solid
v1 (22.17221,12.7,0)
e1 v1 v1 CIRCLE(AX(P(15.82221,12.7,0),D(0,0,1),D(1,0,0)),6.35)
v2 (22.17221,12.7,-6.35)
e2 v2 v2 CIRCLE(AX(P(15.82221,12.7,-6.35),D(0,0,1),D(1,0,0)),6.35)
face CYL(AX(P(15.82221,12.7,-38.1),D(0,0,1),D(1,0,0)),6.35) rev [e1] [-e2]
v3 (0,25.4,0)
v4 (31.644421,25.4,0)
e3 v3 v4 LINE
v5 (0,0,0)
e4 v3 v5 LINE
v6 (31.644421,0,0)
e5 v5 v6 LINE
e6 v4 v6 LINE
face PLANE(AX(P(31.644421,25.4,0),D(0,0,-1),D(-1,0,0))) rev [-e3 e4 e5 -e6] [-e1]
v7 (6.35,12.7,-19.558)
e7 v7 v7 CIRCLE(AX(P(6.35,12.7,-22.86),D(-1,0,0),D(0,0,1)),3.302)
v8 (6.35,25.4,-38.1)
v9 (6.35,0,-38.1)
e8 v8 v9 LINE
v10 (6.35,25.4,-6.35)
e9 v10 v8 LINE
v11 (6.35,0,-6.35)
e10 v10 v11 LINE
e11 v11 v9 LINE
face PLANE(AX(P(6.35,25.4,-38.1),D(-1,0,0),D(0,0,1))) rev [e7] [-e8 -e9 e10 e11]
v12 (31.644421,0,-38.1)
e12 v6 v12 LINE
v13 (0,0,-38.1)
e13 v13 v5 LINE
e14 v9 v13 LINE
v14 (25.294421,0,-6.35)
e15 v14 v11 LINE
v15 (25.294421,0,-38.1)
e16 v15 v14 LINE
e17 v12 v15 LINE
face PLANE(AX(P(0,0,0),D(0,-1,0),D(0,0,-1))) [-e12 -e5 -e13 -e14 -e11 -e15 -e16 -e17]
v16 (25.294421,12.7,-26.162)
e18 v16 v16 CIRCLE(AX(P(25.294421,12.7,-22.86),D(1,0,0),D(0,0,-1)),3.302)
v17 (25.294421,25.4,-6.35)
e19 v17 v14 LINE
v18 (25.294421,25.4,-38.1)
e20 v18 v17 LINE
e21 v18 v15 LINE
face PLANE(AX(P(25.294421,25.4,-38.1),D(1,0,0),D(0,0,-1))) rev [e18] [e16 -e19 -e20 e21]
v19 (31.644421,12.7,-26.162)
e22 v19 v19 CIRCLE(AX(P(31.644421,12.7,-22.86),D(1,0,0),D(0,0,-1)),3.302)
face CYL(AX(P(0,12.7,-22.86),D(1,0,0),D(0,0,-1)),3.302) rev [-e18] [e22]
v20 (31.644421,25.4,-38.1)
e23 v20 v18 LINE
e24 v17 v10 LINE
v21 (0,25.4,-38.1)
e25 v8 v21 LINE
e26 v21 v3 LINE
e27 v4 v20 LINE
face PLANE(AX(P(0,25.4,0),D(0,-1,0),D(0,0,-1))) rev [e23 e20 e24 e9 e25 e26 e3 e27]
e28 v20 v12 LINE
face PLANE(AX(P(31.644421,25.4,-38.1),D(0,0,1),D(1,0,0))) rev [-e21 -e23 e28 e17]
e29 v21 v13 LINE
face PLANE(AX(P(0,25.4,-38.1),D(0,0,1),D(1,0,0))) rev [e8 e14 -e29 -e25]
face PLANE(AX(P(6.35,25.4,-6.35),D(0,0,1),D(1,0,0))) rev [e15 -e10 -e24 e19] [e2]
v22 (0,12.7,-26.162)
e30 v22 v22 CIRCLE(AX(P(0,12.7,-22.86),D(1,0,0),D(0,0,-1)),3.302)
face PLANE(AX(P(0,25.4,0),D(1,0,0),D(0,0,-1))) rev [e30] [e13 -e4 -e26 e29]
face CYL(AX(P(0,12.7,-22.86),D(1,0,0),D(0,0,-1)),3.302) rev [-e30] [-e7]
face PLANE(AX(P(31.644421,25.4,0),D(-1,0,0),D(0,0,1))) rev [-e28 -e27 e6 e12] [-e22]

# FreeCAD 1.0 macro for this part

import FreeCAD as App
import Part
import Sketcher
from FreeCAD import Vector
Q = App.Units.Quantity

doc = App.newDocument("Part")
body = doc.addObject("PartDesign::Body", "Body")

sketch1 = body.newObject("Sketcher::SketchObject", "Sketch")
sketch1.AttachmentSupport = (doc.getObject("XZ_Plane"), [""])
sketch1.MapMode = "FlatFace"
sketch1.addGeometry([
    Part.LineSegment(Vector(0, -38.1, 0), Vector(0, 0, 0)),
    Part.LineSegment(Vector(0, 0, 0), Vector(31.644421, 0, 0)),
    Part.LineSegment(Vector(31.644421, 0, 0), Vector(31.644421, -38.1, 0)),
    Part.LineSegment(Vector(31.644421, -38.1, 0), Vector(25.294421, -38.1, 0)),
    Part.LineSegment(Vector(25.294421, -38.1, 0), Vector(25.294421, -6.35, 0)),
    Part.LineSegment(Vector(25.294421, -6.35, 0), Vector(6.35, -6.35, 0)),
    Part.LineSegment(Vector(6.35, -6.35, 0), Vector(6.35, -38.1, 0)),
    Part.LineSegment(Vector(6.35, -38.1, 0), Vector(0, -38.1, 0)),
], False)
sketch1.addConstraint([
    Sketcher.Constraint("Coincident", 0, 2, 1, 1),
    Sketcher.Constraint("Coincident", 1, 2, 2, 1),
    Sketcher.Constraint("Coincident", 2, 2, 3, 1),
    Sketcher.Constraint("Coincident", 3, 2, 4, 1),
    Sketcher.Constraint("Coincident", 4, 2, 5, 1),
    Sketcher.Constraint("Coincident", 5, 2, 6, 1),
    Sketcher.Constraint("Coincident", 6, 2, 7, 1),
    Sketcher.Constraint("Coincident", 7, 2, 0, 1),
    Sketcher.Constraint("Vertical", 0),
    Sketcher.Constraint("Horizontal", 1),
    Sketcher.Constraint("Vertical", 2),
    Sketcher.Constraint("Horizontal", 3),
    Sketcher.Constraint("Vertical", 4),
    Sketcher.Constraint("Horizontal", 5),
    Sketcher.Constraint("Vertical", 6),
    Sketcher.Constraint("Horizontal", 7),
    Sketcher.Constraint("Coincident", 0, 2, -1, 1),
    Sketcher.Constraint("Horizontal", 3, 2, 6, 2),
    Sketcher.Constraint("Equal", 3, 7),
    Sketcher.Constraint("DistanceY", 0, 1, 0, 2, Q("1.5 in")),
    Sketcher.Constraint("DistanceX", 3, 2, 3, 1, Q("0.25 in")),
    Sketcher.Constraint("DistanceY", 4, 1, 4, 2, Q("1.25 in")),
    Sketcher.Constraint("DistanceX", 1, 1, 1, 2, Q("31.644421 mm")),
])
pad1 = body.newObject("PartDesign::Pad", "Pad")
pad1.Profile = sketch1
pad1.Length = Q("1 in")
pad1.Reversed = True

sketch2 = body.newObject("Sketcher::SketchObject", "Sketch001")
sketch2.AttachmentSupport = (doc.getObject("XY_Plane"), [""])
sketch2.MapMode = "FlatFace"
sketch2.addGeometry(Part.Circle(Vector(15.82221, 12.7, 0), Vector(0, 0, 1), 6.35), False)
sketch2.addConstraint([
    Sketcher.Constraint("Diameter", 0, Q("0.5 in")),
    Sketcher.Constraint("DistanceY", -1, 1, 0, 3, Q("0.5 in")),
    Sketcher.Constraint("DistanceX", -1, 1, 0, 3, Q("15.82221 mm")),
])
pocket1 = body.newObject("PartDesign::Pocket", "Pocket")
pocket1.Profile = sketch2
pocket1.Type = "ThroughAll"

sketch3 = body.newObject("Sketcher::SketchObject", "Sketch002")
sketch3.AttachmentSupport = (doc.getObject("YZ_Plane"), [""])
sketch3.MapMode = "FlatFace"
sketch3.AttachmentOffset = App.Placement(Vector(0, 0, 0.25 * 25.4), App.Rotation())
sketch3.addGeometry(Part.Circle(Vector(12.7, -22.86, 0), Vector(0, 0, 1), 3.302), False)
sketch3.addConstraint([
    Sketcher.Constraint("Diameter", 0, Q("0.26 in")),
    Sketcher.Constraint("DistanceX", -1, 1, 0, 3, Q("0.5 in")),
    Sketcher.Constraint("DistanceY", 0, 3, -1, 1, Q("0.9 in")),
])
pocket2 = body.newObject("PartDesign::Pocket", "Pocket001")
pocket2.Profile = sketch3
pocket2.Type = "ThroughAll"
pocket2.Midplane = True

doc.recompute()
